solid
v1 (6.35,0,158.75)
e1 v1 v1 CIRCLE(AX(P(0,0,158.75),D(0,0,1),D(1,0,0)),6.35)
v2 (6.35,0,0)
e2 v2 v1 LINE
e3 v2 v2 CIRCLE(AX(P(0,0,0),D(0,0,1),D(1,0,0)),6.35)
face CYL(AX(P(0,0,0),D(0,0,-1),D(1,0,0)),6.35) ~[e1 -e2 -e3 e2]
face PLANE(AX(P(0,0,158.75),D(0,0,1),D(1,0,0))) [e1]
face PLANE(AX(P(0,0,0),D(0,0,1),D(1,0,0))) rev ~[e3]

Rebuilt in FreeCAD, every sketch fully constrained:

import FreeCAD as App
import Part
import Sketcher
from FreeCAD import Vector
Q = App.Units.Quantity

doc = App.newDocument("Part")
body = doc.addObject("PartDesign::Body", "Body")

# Sketch on XY plane
sketch1 = body.newObject("Sketcher::SketchObject", "Sketch")
sketch1.AttachmentSupport = (doc.getObject("XY_Plane"), [""])
sketch1.MapMode = "FlatFace"
sketch1.addGeometry(Part.Circle(Vector(0, 0, 0), Vector(0, 0, 1), 6.35), False)
sketch1.addConstraint(Sketcher.Constraint("Coincident", 0, 3, -1, 1))
sketch1.addConstraint(Sketcher.Constraint("Diameter", 0, Q("0.5 in")))
pad1 = body.newObject("PartDesign::Pad", "Pad")
pad1.Profile = sketch1
pad1.Length = Q("6.25 in")

doc.recompute()
